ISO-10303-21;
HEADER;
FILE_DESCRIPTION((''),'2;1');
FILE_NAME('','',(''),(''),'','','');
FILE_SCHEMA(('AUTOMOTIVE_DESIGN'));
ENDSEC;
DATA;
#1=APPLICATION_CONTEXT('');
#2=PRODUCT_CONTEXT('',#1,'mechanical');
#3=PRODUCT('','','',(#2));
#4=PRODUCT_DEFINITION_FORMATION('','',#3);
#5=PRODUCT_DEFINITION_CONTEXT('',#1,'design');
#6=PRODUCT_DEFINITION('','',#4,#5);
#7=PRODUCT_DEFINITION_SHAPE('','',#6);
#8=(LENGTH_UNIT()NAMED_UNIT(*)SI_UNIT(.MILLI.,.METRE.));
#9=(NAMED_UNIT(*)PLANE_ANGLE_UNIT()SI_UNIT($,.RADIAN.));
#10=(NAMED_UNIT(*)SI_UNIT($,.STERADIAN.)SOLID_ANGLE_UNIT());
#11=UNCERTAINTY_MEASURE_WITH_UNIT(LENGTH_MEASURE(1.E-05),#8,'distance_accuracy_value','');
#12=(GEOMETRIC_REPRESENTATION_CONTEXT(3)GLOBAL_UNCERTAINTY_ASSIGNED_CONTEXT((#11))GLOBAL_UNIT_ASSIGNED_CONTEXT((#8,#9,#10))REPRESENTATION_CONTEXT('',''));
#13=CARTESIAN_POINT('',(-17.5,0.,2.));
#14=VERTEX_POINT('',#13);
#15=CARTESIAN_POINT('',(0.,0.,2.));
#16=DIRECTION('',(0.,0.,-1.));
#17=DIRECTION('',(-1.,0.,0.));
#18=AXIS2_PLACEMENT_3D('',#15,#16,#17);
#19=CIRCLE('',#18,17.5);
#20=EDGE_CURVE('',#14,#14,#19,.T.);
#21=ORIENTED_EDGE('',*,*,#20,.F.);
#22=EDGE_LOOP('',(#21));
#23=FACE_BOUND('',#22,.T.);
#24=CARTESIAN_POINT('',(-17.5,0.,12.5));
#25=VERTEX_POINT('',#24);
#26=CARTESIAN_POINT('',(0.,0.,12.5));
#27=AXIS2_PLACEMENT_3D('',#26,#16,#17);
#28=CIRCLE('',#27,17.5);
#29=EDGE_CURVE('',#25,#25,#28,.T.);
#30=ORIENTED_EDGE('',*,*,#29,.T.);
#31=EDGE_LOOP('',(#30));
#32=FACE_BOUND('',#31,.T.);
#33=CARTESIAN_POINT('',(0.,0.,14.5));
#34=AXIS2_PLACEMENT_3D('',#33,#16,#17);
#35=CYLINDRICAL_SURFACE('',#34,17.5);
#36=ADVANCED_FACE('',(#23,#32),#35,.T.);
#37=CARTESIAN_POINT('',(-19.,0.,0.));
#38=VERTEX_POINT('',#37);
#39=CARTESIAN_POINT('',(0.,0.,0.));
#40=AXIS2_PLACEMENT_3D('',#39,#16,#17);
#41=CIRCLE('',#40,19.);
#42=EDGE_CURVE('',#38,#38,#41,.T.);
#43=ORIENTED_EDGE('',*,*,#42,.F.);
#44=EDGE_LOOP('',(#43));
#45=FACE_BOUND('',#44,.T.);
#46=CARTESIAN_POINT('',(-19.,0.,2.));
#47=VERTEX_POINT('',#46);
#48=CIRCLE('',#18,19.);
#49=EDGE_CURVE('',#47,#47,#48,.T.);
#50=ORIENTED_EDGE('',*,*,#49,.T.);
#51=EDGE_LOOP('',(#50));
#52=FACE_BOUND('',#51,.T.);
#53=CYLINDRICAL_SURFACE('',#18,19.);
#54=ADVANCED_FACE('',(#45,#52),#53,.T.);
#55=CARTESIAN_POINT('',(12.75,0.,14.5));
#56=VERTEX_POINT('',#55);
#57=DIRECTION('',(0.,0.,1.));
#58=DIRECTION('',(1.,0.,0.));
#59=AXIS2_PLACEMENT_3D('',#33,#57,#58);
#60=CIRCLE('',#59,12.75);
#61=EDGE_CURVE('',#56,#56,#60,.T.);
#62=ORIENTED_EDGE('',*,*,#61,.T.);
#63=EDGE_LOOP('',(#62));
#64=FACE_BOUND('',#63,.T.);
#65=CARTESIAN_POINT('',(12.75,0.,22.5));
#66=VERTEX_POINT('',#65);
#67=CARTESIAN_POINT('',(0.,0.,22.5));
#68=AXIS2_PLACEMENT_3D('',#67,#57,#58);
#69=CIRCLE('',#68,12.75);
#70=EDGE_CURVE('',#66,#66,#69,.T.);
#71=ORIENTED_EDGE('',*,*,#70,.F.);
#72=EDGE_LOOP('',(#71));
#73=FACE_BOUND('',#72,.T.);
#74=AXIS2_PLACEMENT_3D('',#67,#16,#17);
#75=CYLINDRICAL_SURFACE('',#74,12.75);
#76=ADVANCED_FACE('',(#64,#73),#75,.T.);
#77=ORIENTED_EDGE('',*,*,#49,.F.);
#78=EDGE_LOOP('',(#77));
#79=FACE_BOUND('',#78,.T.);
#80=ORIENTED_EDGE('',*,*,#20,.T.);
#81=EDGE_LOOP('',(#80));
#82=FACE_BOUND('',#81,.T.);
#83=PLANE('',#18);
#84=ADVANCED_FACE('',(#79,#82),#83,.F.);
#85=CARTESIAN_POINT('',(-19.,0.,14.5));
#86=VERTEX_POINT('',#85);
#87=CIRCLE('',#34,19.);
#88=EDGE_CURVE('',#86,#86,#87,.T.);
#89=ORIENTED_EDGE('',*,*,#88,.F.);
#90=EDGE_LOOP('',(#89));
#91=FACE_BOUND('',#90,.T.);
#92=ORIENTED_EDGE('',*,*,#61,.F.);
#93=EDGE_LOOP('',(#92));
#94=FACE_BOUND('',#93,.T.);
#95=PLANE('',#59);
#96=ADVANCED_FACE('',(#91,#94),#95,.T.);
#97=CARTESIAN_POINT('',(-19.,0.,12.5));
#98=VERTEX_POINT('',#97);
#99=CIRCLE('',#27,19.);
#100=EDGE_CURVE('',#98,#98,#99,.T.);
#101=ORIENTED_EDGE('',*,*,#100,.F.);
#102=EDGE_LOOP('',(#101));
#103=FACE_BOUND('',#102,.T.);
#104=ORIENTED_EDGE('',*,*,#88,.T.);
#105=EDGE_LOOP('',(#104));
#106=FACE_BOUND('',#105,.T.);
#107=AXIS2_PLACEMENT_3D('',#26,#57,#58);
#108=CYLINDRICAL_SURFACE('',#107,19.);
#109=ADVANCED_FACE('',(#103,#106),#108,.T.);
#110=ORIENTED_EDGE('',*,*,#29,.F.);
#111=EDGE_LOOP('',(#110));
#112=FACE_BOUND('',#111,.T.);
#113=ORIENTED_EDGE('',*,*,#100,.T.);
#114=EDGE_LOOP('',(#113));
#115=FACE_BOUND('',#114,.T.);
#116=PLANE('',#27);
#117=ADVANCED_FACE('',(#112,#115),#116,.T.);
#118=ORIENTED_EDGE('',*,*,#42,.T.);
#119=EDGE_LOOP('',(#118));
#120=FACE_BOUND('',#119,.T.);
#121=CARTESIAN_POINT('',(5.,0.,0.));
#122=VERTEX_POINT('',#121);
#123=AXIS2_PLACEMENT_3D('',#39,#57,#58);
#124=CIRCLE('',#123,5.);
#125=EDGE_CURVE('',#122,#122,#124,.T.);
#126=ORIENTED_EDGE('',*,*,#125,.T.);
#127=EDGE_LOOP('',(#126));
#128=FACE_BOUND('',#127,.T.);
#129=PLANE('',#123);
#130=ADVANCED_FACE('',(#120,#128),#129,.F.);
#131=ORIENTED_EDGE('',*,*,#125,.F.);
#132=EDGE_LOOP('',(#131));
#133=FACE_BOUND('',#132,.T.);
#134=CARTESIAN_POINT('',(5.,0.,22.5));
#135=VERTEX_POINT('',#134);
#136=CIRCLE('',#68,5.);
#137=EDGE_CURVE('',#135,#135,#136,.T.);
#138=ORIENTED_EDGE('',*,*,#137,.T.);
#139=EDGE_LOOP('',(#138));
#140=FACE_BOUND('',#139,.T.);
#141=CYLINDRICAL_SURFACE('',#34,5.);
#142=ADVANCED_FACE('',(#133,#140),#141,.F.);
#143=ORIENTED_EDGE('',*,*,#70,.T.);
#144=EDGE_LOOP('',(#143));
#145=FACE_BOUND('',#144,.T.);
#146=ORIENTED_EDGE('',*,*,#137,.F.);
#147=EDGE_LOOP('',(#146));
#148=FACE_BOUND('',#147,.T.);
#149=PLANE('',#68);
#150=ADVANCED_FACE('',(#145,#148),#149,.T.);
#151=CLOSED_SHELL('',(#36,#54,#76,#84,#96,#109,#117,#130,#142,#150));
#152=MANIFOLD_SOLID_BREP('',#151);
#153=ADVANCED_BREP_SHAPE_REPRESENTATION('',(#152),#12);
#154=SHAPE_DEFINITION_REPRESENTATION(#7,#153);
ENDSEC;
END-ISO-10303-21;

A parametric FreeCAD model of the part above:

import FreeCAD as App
import Part
import Sketcher

V = App.Vector

doc = App.newDocument("Part")
body = doc.addObject("PartDesign::Body", "Body")

# Sketch on XY plane
sketch1 = body.newObject("Sketcher::SketchObject", "Sketch")
sketch1.AttachmentSupport = (doc.getObject("XY_Plane"), [""])
sketch1.MapMode = "FlatFace"
sketch1.addGeometry(Part.Circle(V(0, 0, 0), V(0, 0, 1), 17.5), False)
sketch1.addGeometry(Part.Circle(V(0, 0, 0), V(0, 0, 1), 5), False)
sketch1.addConstraint(Sketcher.Constraint("Coincident", 0, 3, -1, 1))
sketch1.addConstraint(Sketcher.Constraint("Coincident", 1, 3, -1, 1))
sketch1.addConstraint(Sketcher.Constraint("Diameter", 0, 35.0))
sketch1.addConstraint(Sketcher.Constraint("Diameter", 1, 10.0))
pad1 = body.newObject("PartDesign::Pad", "Pad")
pad1.Profile = sketch1
pad1.Length = 14.5

# Sketch on XY plane
sketch2 = body.newObject("Sketcher::SketchObject", "Sketch001")
sketch2.AttachmentSupport = (doc.getObject("XY_Plane"), [""])
sketch2.MapMode = "FlatFace"
sketch2.AttachmentOffset = App.Placement(V(0, 0, 14.5), App.Rotation())
sketch2.addGeometry(Part.Circle(V(0, 0, 0), V(0, 0, 1), 12.75), False)
sketch2.addGeometry(Part.Circle(V(0, 0, 0), V(0, 0, 1), 5), False)
sketch2.addConstraint(Sketcher.Constraint("Coincident", 0, 3, -1, 1))
sketch2.addConstraint(Sketcher.Constraint("Coincident", 1, 3, -1, 1))
sketch2.addConstraint(Sketcher.Constraint("Diameter", 1, 10.0))
sketch2.addConstraint(Sketcher.Constraint("Diameter", 0, 25.5))
pad2 = body.newObject("PartDesign::Pad", "Pad001")
pad2.Profile = sketch2
pad2.Length = 8

# Sketch on XY plane
sketch3 = body.newObject("Sketcher::SketchObject", "Sketch002")
sketch3.AttachmentSupport = (doc.getObject("XY_Plane"), [""])
sketch3.MapMode = "FlatFace"
sketch3.addGeometry(Part.Circle(V(0, 0, 0), V(0, 0, 1), 19), False)
sketch3.addGeometry(Part.Circle(V(0, 0, 0), V(0, 0, 1), 17.5), False)
sketch3.addConstraint(Sketcher.Constraint("Coincident", 0, 3, -1, 1))
sketch3.addConstraint(Sketcher.Constraint("Coincident", 1, 3, -1, 1))
sketch3.addConstraint(Sketcher.Constraint("Diameter", 0, 38.0))
sketch3.addConstraint(Sketcher.Constraint("Diameter", 1, 35.0))
pad3 = body.newObject("PartDesign::Pad", "Pad002")
pad3.Profile = sketch3
pad3.Length = 2

# Sketch on XY plane
sketch4 = body.newObject("Sketcher::SketchObject", "Sketch003")
sketch4.AttachmentSupport = (doc.getObject("XY_Plane"), [""])
sketch4.MapMode = "FlatFace"
sketch4.AttachmentOffset = App.Placement(V(0, 0, 14.5), App.Rotation())
sketch4.addGeometry(Part.Circle(V(0, 0, 0), V(0, 0, 1), 19), False)
sketch4.addGeometry(Part.Circle(V(0, 0, 0), V(0, 0, 1), 17.5), False)
sketch4.addConstraint(Sketcher.Constraint("Coincident", 0, 3, -1, 1))
sketch4.addConstraint(Sketcher.Constraint("Coincident", 1, 3, -1, 1))
sketch4.addConstraint(Sketcher.Constraint("Diameter", 0, 38.0))
sketch4.addConstraint(Sketcher.Constraint("Diameter", 1, 35.0))
pad4 = body.newObject("PartDesign::Pad", "Pad003")
pad4.Profile = sketch4
pad4.Length = 2
pad4.Reversed = True

doc.recompute()
